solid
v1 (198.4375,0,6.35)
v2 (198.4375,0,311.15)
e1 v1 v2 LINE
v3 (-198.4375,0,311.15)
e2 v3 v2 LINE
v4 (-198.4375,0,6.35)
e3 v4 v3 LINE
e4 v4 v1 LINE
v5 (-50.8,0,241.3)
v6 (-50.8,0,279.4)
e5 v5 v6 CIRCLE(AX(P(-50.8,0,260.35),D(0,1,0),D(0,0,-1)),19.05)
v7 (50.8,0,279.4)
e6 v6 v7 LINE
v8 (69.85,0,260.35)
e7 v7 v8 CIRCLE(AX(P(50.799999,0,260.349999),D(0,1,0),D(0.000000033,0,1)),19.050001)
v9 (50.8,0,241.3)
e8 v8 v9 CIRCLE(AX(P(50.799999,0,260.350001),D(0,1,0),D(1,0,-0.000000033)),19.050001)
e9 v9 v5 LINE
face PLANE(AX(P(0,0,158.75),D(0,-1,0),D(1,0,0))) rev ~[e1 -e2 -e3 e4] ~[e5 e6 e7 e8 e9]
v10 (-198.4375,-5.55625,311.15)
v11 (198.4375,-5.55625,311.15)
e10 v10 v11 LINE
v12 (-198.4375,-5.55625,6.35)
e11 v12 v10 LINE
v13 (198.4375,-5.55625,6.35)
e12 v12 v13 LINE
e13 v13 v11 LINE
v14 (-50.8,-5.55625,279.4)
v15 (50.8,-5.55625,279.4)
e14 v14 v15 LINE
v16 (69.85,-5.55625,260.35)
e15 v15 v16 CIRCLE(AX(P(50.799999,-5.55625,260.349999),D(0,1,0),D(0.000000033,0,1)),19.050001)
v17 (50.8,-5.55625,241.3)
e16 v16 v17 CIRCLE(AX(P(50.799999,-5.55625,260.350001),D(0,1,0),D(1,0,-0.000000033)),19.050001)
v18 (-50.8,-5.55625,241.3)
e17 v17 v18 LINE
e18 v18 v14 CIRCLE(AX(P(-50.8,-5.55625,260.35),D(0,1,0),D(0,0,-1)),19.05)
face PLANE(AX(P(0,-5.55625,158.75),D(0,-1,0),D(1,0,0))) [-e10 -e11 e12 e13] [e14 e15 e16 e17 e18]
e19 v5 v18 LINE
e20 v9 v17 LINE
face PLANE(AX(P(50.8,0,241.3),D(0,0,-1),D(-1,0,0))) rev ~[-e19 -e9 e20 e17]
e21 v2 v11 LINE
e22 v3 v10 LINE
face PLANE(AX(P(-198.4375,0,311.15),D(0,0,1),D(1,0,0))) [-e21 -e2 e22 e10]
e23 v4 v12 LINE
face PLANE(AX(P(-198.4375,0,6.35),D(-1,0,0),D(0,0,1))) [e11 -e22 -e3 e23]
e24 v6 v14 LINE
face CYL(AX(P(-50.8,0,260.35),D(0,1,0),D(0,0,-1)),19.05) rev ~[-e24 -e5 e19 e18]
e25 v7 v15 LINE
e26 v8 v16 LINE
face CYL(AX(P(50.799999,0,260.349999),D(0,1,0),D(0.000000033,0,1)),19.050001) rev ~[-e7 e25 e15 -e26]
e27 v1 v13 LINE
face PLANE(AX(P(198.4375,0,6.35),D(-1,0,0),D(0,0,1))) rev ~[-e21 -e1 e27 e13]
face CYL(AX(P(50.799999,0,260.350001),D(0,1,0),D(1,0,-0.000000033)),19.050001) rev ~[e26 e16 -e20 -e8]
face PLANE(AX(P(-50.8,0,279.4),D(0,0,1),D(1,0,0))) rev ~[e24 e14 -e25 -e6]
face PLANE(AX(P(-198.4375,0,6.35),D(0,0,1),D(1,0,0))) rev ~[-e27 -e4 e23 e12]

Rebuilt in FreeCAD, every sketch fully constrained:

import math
import FreeCAD as App
import Part
import Sketcher
from FreeCAD import Vector
Q = App.Units.Quantity

doc = App.newDocument("Part")
params = doc.addObject("Spreadsheet::Sheet", "Params")
for row, (alias, value) in enumerate([
    ("sketch1_width", "4 in"),
    ("sketch1_height", "12 in"),
    ("sketch1_radius", "0.75 in"),
    ("sketch1_width2", "15.625 in"),
    ("pad1_length", "0.21875 in"),
], start=1):
    params.set(f"A{row}", alias)
    params.set(f"B{row}", "=" + value)
    params.setAlias(f"B{row}", alias)

body = doc.addObject("PartDesign::Body", "Body")

# Sketch on XZ plane
sketch1 = body.newObject("Sketcher::SketchObject", "Sketch")
sketch1.AttachmentSupport = (doc.getObject("XZ_Plane"), [""])
sketch1.MapMode = "FlatFace"
sketch1.addGeometry([
    Part.LineSegment(Vector(-198, 311, 0), Vector(-198, 6, 0)),  # 0
    Part.LineSegment(Vector(-198, 6, 0), Vector(198, 6, 0)),  # 1
    Part.LineSegment(Vector(198, 6, 0), Vector(198, 311, 0)),  # 2
    Part.LineSegment(Vector(198, 311, 0), Vector(-198, 311, 0)),  # 3
    Part.LineSegment(Vector(51, 241, 0), Vector(-51, 241, 0)),  # 4
    Part.ArcOfCircle(Part.Circle(Vector(-51, 260, 0), Vector(0, 0, 1), 19), math.radians(90), math.radians(270)),  # 5
    Part.LineSegment(Vector(-51, 279, 0), Vector(51, 279, 0)),  # 6
    Part.ArcOfCircle(Part.Circle(Vector(51, 260, 0), Vector(0, 0, 1), 19), math.radians(0), math.radians(90)),  # 7
    Part.ArcOfCircle(Part.Circle(Vector(51, 260, 0), Vector(0, 0, 1), 19), math.radians(-90), math.radians(0)),  # 8
], False)
sketch1.addConstraint([
    Sketcher.Constraint("Coincident", 0, 2, 1, 1),
    Sketcher.Constraint("Coincident", 1, 2, 2, 1),
    Sketcher.Constraint("Coincident", 2, 2, 3, 1),
    Sketcher.Constraint("Coincident", 3, 2, 0, 1),
    Sketcher.Constraint("Tangent", 4, 2, 5, 2),
    Sketcher.Constraint("Tangent", 5, 1, 6, 1),
    Sketcher.Constraint("Tangent", 6, 2, 7, 2),
    Sketcher.Constraint("Tangent", 7, 1, 8, 2),
    Sketcher.Constraint("Tangent", 8, 1, 4, 1),
    Sketcher.Constraint("Vertical", 0),
    Sketcher.Constraint("Horizontal", 1),
    Sketcher.Constraint("Vertical", 2),
    Sketcher.Constraint("Horizontal", 3),
    Sketcher.Constraint("Horizontal", 4),
    Sketcher.Constraint("Horizontal", 6),
    Sketcher.Constraint("Equal", 5, 7),
    Sketcher.Constraint("Horizontal", 8, 3, 7, 1),
    Sketcher.Constraint("DistanceX", 4, 2, 4, 1, Q("4 in")),
    Sketcher.Constraint("DistanceY", 0, 2, 0, 1, Q("12 in")),
    Sketcher.Constraint("Radius", 5, Q("0.75 in")),
    Sketcher.Constraint("DistanceX", 5, 3, -1, 1, Q("2 in")),
    Sketcher.Constraint("DistanceY", -1, 1, 5, 1, Q("11 in")),
    Sketcher.Constraint("DistanceY", 0, 2, 5, 3, Q("10 in")),
    Sketcher.Constraint("DistanceX", 1, 1, 1, 2, Q("15.625 in")),
    Sketcher.Constraint("DistanceX", 0, 2, -1, 1, Q("7.8125 in")),
])
sketch1.setExpression("Constraints[17]", "Params.sketch1_width")
sketch1.setExpression("Constraints[18]", "Params.sketch1_height")
sketch1.setExpression("Constraints[19]", "Params.sketch1_radius")
sketch1.setExpression("Constraints[23]", "Params.sketch1_width2")
pad1 = body.newObject("PartDesign::Pad", "Pad")
pad1.Profile = sketch1
pad1.setExpression("Length", "Params.pad1_length")

doc.recompute()
